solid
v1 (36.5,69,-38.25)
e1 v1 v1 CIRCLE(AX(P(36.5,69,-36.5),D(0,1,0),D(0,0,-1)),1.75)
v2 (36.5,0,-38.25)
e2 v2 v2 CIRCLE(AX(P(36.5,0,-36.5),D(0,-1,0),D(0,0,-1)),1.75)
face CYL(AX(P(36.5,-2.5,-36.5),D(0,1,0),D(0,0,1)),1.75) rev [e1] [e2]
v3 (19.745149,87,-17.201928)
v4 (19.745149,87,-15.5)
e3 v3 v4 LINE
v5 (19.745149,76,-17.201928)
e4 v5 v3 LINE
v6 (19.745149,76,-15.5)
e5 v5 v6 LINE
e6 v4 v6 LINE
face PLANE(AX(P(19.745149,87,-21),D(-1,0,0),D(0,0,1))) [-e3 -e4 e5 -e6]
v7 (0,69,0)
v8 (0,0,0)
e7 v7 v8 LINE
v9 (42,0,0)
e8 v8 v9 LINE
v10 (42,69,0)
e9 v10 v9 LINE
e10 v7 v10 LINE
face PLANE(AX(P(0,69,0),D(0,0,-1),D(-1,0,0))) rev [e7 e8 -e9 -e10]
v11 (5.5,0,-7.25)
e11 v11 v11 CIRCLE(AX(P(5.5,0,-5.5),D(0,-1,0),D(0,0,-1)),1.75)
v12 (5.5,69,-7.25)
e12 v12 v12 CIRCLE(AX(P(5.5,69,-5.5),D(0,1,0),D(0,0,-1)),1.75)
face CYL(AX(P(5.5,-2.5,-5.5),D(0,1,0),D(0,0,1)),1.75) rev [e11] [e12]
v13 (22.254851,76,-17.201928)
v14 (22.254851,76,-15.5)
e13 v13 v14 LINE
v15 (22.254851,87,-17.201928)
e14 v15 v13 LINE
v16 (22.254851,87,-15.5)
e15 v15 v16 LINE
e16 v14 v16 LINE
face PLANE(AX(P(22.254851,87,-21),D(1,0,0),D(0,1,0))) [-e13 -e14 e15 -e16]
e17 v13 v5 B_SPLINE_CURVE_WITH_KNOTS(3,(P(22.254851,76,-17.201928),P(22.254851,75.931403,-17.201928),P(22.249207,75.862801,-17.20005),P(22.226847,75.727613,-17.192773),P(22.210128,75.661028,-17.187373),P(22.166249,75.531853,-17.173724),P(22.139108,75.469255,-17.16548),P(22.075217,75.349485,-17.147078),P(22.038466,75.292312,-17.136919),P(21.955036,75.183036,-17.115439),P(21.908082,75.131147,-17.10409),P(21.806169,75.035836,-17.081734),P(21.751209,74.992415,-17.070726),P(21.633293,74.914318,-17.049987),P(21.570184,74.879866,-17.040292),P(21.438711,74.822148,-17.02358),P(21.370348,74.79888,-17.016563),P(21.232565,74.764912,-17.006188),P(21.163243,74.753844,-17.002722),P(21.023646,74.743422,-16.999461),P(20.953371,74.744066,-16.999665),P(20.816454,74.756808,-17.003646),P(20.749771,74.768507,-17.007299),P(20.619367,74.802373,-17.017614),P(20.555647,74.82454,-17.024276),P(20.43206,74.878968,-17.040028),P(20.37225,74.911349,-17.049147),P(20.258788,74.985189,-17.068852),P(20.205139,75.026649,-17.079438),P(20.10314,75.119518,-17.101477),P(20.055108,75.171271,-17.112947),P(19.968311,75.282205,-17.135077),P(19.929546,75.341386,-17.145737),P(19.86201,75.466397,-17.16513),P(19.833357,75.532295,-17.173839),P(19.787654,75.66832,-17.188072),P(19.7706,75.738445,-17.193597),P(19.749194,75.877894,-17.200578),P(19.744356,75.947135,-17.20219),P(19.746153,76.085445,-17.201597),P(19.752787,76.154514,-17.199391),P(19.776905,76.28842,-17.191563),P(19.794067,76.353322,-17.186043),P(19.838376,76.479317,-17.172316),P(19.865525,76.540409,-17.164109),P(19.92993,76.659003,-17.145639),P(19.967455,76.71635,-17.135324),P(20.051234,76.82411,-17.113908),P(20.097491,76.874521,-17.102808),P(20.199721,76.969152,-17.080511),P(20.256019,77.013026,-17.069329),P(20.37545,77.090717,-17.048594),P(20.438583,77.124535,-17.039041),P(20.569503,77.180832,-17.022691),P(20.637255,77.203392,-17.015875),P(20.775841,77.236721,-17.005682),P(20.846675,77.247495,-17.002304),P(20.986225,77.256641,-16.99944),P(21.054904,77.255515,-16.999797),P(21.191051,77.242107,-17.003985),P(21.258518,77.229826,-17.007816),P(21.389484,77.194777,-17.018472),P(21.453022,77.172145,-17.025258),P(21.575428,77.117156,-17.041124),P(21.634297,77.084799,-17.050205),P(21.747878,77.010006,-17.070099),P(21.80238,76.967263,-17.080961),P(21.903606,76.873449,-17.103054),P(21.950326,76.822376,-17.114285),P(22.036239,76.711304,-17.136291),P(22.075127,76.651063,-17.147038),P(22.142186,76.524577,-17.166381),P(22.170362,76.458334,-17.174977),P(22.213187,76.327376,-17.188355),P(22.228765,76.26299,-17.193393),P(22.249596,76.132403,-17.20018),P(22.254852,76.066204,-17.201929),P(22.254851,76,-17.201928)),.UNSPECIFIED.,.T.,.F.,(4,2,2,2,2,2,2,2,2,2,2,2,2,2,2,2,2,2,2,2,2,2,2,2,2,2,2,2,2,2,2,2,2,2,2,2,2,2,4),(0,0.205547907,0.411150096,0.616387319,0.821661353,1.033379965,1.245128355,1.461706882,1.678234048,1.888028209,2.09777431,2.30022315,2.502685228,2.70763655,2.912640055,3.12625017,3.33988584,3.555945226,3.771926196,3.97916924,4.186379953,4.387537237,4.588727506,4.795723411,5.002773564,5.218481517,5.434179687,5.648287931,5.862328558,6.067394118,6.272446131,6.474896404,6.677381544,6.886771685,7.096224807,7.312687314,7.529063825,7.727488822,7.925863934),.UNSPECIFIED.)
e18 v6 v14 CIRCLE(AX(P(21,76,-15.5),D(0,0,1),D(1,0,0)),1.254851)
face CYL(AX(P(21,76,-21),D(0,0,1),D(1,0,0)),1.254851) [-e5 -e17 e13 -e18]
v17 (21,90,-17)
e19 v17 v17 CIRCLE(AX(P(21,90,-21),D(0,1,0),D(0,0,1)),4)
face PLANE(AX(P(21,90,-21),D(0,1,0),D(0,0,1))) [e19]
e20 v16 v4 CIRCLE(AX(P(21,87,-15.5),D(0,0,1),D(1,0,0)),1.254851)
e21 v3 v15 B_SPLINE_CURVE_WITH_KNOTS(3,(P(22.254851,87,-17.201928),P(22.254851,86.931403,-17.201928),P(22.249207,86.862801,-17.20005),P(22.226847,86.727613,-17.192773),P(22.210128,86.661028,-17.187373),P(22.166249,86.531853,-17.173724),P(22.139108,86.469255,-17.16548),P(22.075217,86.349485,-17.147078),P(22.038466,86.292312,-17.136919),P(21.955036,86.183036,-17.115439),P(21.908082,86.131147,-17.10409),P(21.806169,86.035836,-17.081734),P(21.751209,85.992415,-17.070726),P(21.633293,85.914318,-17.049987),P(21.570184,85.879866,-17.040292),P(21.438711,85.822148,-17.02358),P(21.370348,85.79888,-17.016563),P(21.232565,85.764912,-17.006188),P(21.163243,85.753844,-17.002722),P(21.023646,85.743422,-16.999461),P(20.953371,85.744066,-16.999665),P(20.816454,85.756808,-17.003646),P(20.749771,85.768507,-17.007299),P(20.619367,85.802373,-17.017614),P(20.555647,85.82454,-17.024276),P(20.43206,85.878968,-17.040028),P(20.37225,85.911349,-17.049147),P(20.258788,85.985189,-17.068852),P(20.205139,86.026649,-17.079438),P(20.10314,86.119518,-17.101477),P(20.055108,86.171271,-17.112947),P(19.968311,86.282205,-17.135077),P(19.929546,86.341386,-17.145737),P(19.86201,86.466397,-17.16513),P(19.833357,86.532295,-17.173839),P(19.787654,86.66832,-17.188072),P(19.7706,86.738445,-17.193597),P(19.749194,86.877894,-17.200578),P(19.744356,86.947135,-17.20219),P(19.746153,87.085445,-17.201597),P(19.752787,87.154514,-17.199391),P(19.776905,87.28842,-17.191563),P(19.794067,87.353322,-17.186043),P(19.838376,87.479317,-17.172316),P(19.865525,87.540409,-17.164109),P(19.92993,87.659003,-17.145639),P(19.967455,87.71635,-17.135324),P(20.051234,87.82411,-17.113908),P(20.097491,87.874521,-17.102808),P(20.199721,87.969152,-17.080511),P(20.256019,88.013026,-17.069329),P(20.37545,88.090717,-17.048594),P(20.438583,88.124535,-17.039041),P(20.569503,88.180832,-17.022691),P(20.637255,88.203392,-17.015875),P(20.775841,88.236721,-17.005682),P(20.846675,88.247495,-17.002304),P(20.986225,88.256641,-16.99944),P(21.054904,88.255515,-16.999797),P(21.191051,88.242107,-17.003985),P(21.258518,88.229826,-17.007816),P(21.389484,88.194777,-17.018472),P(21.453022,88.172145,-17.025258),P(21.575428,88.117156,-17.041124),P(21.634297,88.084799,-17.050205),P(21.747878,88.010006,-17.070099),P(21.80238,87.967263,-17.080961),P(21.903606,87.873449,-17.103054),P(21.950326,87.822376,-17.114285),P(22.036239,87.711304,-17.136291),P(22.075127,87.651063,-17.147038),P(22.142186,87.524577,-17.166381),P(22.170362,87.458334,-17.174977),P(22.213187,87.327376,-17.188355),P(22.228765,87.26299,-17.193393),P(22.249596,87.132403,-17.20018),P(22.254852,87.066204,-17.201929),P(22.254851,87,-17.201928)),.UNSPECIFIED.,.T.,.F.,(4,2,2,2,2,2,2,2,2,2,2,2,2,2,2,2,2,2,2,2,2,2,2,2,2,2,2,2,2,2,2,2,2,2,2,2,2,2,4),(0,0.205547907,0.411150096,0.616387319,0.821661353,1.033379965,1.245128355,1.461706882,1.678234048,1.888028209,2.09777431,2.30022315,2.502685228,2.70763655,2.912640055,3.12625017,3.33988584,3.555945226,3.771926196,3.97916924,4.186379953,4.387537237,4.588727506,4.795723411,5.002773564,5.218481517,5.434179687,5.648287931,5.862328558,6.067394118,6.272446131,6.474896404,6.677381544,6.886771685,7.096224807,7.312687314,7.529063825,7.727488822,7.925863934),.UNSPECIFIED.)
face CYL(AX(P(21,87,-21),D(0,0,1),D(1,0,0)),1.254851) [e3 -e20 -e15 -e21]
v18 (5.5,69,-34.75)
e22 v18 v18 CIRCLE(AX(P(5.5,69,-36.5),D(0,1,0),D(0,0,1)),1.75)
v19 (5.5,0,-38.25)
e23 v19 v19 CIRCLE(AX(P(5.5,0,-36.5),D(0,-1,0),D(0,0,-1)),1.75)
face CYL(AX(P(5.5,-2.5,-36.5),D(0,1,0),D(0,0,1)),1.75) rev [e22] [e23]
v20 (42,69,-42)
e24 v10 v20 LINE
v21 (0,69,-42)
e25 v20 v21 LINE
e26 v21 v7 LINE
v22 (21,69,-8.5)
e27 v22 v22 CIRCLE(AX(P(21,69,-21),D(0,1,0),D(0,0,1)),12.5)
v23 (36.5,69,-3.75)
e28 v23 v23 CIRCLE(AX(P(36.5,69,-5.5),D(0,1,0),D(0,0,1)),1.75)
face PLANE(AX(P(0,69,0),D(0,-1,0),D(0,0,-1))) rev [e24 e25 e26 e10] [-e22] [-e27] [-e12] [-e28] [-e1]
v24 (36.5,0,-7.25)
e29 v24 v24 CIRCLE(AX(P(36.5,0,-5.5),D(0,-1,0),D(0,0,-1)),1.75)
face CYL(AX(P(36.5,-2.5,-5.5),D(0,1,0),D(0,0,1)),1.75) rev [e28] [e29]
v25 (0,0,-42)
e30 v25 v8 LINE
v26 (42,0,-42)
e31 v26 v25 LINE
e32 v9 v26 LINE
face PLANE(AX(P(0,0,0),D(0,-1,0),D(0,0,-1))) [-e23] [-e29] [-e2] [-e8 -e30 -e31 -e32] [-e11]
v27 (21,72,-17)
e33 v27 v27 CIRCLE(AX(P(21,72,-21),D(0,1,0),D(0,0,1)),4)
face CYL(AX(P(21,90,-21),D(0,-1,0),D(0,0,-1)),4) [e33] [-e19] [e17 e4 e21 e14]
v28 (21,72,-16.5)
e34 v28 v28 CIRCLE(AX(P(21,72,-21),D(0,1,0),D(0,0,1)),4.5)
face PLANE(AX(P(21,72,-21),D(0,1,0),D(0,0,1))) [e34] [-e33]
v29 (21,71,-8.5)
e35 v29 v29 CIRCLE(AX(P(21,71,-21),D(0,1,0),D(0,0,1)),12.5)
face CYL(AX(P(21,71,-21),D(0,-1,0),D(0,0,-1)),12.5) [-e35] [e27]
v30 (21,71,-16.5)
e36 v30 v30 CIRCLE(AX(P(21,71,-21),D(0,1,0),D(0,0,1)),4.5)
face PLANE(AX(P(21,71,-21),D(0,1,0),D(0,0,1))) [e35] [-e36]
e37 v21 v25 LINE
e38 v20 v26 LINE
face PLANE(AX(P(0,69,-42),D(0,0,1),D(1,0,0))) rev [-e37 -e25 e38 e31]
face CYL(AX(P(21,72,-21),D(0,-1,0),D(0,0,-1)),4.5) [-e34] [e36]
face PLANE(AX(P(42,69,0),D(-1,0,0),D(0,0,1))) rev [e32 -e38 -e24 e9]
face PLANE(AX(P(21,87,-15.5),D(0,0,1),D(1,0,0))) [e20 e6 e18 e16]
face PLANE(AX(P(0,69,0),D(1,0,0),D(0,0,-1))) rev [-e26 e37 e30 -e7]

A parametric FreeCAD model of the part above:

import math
import FreeCAD as App
import Part
import Sketcher

V = App.Vector

doc = App.newDocument("Part")
body = doc.addObject("PartDesign::Body", "Body")

sketch1 = doc.addObject("Sketcher::SketchObject", "Sketch")
body.addObject(sketch1)
sketch1.AttachmentSupport = (doc.XZ_Plane, [""])
sketch1.MapMode = "FlatFace"
sketch1.addGeometry(Part.LineSegment(V(0, -42, 0), V(0, 0, 0)), False)
sketch1.addGeometry(Part.LineSegment(V(0, 0, 0), V(42, 0, 0)), False)
sketch1.addGeometry(Part.LineSegment(V(42, 0, 0), V(42, -42, 0)), False)
sketch1.addGeometry(Part.LineSegment(V(42, -42, 0), V(0, -42, 0)), False)
sketch1.addConstraint(Sketcher.Constraint("Coincident", 0, 2, 1, 1))
sketch1.addConstraint(Sketcher.Constraint("Coincident", 1, 2, 2, 1))
sketch1.addConstraint(Sketcher.Constraint("Coincident", 2, 2, 3, 1))
sketch1.addConstraint(Sketcher.Constraint("Coincident", 3, 2, 0, 1))
sketch1.addConstraint(Sketcher.Constraint("Vertical", 0))
sketch1.addConstraint(Sketcher.Constraint("Horizontal", 1))
sketch1.addConstraint(Sketcher.Constraint("Vertical", 2))
sketch1.addConstraint(Sketcher.Constraint("Horizontal", 3))
sketch1.addConstraint(Sketcher.Constraint("Coincident", 0, 2, -1, 1))
sketch1.addConstraint(Sketcher.Constraint("Equal", 3, 0))
sketch1.addConstraint(Sketcher.Constraint("DistanceX", 1, 1, 1, 2, 42.0))
pad1 = doc.addObject("PartDesign::Pad", "Pad")
body.addObject(pad1)
pad1.Profile = sketch1
pad1.Length = 69
pad1.Reversed = True

sketch2 = doc.addObject("Sketcher::SketchObject", "Sketch001")
body.addObject(sketch2)
sketch2.AttachmentSupport = (doc.XZ_Plane, [""])
sketch2.MapMode = "FlatFace"
sketch2.AttachmentOffset = App.Placement(V(0, 0, -69), App.Rotation())
sketch2.addGeometry(Part.Circle(V(21, -21, 0), V(0, 0, 1), 12.5), False)
sketch2.addConstraint(Sketcher.Constraint("Diameter", 0, 25.0))
sketch2.addConstraint(Sketcher.Constraint("DistanceX", -1, 1, 0, 3, 21.0))
sketch2.addConstraint(Sketcher.Constraint("DistanceY", 0, 3, -1, 1, 21.0))
pad2 = doc.addObject("PartDesign::Pad", "Pad001")
body.addObject(pad2)
pad2.Profile = sketch2
pad2.Length = 2
pad2.Reversed = True

sketch3 = doc.addObject("Sketcher::SketchObject", "Sketch002")
body.addObject(sketch3)
sketch3.AttachmentSupport = (doc.XZ_Plane, [""])
sketch3.MapMode = "FlatFace"
sketch3.AttachmentOffset = App.Placement(V(0, 0, -71), App.Rotation())
sketch3.addGeometry(Part.Circle(V(21, -21, 0), V(0, 0, 1), 4.5), False)
sketch3.addConstraint(Sketcher.Constraint("Diameter", 0, 9.0))
sketch3.addConstraint(Sketcher.Constraint("DistanceX", -1, 1, 0, 3, 21.0))
sketch3.addConstraint(Sketcher.Constraint("DistanceY", 0, 3, -1, 1, 21.0))
pad3 = doc.addObject("PartDesign::Pad", "Pad002")
body.addObject(pad3)
pad3.Profile = sketch3
pad3.Length = 1
pad3.Reversed = True

sketch4 = doc.addObject("Sketcher::SketchObject", "Sketch003")
body.addObject(sketch4)
sketch4.AttachmentSupport = (doc.XZ_Plane, [""])
sketch4.MapMode = "FlatFace"
sketch4.AttachmentOffset = App.Placement(V(0, 0, -72), App.Rotation())
sketch4.addGeometry(Part.Circle(V(21, -21, 0), V(0, 0, 1), 4), False)
sketch4.addConstraint(Sketcher.Constraint("Diameter", 0, 8.0))
sketch4.addConstraint(Sketcher.Constraint("DistanceX", -1, 1, 0, 3, 21.0))
sketch4.addConstraint(Sketcher.Constraint("DistanceY", 0, 3, -1, 1, 21.0))
pad4 = doc.addObject("PartDesign::Pad", "Pad003")
body.addObject(pad4)
pad4.Profile = sketch4
pad4.Length = 18
pad4.Reversed = True

sketch5 = doc.addObject("Sketcher::SketchObject", "Sketch004")
body.addObject(sketch5)
sketch5.AttachmentSupport = (doc.XY_Plane, [""])
sketch5.MapMode = "FlatFace"
sketch5.AttachmentOffset = App.Placement(V(0, 0, -17), App.Rotation())
sketch5.addGeometry(Part.LineSegment(V(22.254851, 76, 0), V(22.254851, 87, 0)), False)
sketch5.addGeometry(Part.ArcOfCircle(Part.Circle(V(21, 87, 0), V(0, 0, 1), 1.254851), math.radians(0), math.radians(180)), False)
sketch5.addGeometry(Part.LineSegment(V(19.745149, 87, 0), V(19.745149, 76, 0)), False)
sketch5.addGeometry(Part.ArcOfCircle(Part.Circle(V(21, 76, 0), V(0, 0, 1), 1.254851), math.radians(180), math.radians(360)), False)
sketch5.addConstraint(Sketcher.Constraint("Tangent", 0, 2, 1, 1))
sketch5.addConstraint(Sketcher.Constraint("Tangent", 1, 2, 2, 1))
sketch5.addConstraint(Sketcher.Constraint("Tangent", 2, 2, 3, 1))
sketch5.addConstraint(Sketcher.Constraint("Tangent", 3, 2, 0, 1))
sketch5.addConstraint(Sketcher.Constraint("Vertical", 0))
sketch5.addConstraint(Sketcher.Constraint("Vertical", 2))
sketch5.addConstraint(Sketcher.Constraint("DistanceY", 0, 1, 0, 2, 11.0))
sketch5.addConstraint(Sketcher.Constraint("DistanceX", -1, 1, 1, 3, 21.0))
sketch5.addConstraint(Sketcher.Constraint("DistanceY", -1, 1, 1, 3, 87.0))
sketch5.addConstraint(Sketcher.Constraint("Radius", 1, 1.254851))
pad5 = doc.addObject("PartDesign::Pad", "Pad004")
body.addObject(pad5)
pad5.Profile = sketch5
pad5.Type = "TwoLengths"
pad5.Length = 1.5
pad5.Length2 = 4

sketch6 = doc.addObject("Sketcher::SketchObject", "Sketch005")
body.addObject(sketch6)
sketch6.AttachmentSupport = (doc.XZ_Plane, [""])
sketch6.MapMode = "FlatFace"
sketch6.AttachmentOffset = App.Placement(V(0, 0, -69), App.Rotation())
sketch6.addGeometry(Part.Circle(V(5.5, -36.5, 0), V(0, 0, 1), 1.75), False)
sketch6.addGeometry(Part.Circle(V(36.5, -36.5, 0), V(0, 0, 1), 1.75), False)
sketch6.addGeometry(Part.Circle(V(36.5, -5.5, 0), V(0, 0, 1), 1.75), False)
sketch6.addGeometry(Part.Circle(V(5.5, -5.5, 0), V(0, 0, 1), 1.75), False)
sketch6.addConstraint(Sketcher.Constraint("Equal", 0, 1))
sketch6.addConstraint(Sketcher.Constraint("Equal", 1, 2))
sketch6.addConstraint(Sketcher.Constraint("Equal", 2, 3))
sketch6.addConstraint(Sketcher.Constraint("Horizontal", 0, 3, 1, 3))
sketch6.addConstraint(Sketcher.Constraint("Horizontal", 2, 3, 3, 3))
sketch6.addConstraint(Sketcher.Constraint("Vertical", 1, 3, 2, 3))
sketch6.addConstraint(Sketcher.Constraint("Vertical", 0, 3, 3, 3))
sketch6.addConstraint(Sketcher.Constraint("Diameter", 0, 3.5))
sketch6.addConstraint(Sketcher.Constraint("DistanceX", 0, 3, 1, 3, 31.0))
sketch6.addConstraint(Sketcher.Constraint("DistanceY", 1, 3, 2, 3, 31.0))
sketch6.addConstraint(Sketcher.Constraint("DistanceX", -1, 1, 0, 3, 5.5))
sketch6.addConstraint(Sketcher.Constraint("DistanceY", 0, 3, -1, 1, 36.5))
pocket1 = doc.addObject("PartDesign::Pocket", "Pocket")
body.addObject(pocket1)
pocket1.Profile = sketch6
pocket1.Length = 71.5
pocket1.Reversed = True

doc.recompute()
